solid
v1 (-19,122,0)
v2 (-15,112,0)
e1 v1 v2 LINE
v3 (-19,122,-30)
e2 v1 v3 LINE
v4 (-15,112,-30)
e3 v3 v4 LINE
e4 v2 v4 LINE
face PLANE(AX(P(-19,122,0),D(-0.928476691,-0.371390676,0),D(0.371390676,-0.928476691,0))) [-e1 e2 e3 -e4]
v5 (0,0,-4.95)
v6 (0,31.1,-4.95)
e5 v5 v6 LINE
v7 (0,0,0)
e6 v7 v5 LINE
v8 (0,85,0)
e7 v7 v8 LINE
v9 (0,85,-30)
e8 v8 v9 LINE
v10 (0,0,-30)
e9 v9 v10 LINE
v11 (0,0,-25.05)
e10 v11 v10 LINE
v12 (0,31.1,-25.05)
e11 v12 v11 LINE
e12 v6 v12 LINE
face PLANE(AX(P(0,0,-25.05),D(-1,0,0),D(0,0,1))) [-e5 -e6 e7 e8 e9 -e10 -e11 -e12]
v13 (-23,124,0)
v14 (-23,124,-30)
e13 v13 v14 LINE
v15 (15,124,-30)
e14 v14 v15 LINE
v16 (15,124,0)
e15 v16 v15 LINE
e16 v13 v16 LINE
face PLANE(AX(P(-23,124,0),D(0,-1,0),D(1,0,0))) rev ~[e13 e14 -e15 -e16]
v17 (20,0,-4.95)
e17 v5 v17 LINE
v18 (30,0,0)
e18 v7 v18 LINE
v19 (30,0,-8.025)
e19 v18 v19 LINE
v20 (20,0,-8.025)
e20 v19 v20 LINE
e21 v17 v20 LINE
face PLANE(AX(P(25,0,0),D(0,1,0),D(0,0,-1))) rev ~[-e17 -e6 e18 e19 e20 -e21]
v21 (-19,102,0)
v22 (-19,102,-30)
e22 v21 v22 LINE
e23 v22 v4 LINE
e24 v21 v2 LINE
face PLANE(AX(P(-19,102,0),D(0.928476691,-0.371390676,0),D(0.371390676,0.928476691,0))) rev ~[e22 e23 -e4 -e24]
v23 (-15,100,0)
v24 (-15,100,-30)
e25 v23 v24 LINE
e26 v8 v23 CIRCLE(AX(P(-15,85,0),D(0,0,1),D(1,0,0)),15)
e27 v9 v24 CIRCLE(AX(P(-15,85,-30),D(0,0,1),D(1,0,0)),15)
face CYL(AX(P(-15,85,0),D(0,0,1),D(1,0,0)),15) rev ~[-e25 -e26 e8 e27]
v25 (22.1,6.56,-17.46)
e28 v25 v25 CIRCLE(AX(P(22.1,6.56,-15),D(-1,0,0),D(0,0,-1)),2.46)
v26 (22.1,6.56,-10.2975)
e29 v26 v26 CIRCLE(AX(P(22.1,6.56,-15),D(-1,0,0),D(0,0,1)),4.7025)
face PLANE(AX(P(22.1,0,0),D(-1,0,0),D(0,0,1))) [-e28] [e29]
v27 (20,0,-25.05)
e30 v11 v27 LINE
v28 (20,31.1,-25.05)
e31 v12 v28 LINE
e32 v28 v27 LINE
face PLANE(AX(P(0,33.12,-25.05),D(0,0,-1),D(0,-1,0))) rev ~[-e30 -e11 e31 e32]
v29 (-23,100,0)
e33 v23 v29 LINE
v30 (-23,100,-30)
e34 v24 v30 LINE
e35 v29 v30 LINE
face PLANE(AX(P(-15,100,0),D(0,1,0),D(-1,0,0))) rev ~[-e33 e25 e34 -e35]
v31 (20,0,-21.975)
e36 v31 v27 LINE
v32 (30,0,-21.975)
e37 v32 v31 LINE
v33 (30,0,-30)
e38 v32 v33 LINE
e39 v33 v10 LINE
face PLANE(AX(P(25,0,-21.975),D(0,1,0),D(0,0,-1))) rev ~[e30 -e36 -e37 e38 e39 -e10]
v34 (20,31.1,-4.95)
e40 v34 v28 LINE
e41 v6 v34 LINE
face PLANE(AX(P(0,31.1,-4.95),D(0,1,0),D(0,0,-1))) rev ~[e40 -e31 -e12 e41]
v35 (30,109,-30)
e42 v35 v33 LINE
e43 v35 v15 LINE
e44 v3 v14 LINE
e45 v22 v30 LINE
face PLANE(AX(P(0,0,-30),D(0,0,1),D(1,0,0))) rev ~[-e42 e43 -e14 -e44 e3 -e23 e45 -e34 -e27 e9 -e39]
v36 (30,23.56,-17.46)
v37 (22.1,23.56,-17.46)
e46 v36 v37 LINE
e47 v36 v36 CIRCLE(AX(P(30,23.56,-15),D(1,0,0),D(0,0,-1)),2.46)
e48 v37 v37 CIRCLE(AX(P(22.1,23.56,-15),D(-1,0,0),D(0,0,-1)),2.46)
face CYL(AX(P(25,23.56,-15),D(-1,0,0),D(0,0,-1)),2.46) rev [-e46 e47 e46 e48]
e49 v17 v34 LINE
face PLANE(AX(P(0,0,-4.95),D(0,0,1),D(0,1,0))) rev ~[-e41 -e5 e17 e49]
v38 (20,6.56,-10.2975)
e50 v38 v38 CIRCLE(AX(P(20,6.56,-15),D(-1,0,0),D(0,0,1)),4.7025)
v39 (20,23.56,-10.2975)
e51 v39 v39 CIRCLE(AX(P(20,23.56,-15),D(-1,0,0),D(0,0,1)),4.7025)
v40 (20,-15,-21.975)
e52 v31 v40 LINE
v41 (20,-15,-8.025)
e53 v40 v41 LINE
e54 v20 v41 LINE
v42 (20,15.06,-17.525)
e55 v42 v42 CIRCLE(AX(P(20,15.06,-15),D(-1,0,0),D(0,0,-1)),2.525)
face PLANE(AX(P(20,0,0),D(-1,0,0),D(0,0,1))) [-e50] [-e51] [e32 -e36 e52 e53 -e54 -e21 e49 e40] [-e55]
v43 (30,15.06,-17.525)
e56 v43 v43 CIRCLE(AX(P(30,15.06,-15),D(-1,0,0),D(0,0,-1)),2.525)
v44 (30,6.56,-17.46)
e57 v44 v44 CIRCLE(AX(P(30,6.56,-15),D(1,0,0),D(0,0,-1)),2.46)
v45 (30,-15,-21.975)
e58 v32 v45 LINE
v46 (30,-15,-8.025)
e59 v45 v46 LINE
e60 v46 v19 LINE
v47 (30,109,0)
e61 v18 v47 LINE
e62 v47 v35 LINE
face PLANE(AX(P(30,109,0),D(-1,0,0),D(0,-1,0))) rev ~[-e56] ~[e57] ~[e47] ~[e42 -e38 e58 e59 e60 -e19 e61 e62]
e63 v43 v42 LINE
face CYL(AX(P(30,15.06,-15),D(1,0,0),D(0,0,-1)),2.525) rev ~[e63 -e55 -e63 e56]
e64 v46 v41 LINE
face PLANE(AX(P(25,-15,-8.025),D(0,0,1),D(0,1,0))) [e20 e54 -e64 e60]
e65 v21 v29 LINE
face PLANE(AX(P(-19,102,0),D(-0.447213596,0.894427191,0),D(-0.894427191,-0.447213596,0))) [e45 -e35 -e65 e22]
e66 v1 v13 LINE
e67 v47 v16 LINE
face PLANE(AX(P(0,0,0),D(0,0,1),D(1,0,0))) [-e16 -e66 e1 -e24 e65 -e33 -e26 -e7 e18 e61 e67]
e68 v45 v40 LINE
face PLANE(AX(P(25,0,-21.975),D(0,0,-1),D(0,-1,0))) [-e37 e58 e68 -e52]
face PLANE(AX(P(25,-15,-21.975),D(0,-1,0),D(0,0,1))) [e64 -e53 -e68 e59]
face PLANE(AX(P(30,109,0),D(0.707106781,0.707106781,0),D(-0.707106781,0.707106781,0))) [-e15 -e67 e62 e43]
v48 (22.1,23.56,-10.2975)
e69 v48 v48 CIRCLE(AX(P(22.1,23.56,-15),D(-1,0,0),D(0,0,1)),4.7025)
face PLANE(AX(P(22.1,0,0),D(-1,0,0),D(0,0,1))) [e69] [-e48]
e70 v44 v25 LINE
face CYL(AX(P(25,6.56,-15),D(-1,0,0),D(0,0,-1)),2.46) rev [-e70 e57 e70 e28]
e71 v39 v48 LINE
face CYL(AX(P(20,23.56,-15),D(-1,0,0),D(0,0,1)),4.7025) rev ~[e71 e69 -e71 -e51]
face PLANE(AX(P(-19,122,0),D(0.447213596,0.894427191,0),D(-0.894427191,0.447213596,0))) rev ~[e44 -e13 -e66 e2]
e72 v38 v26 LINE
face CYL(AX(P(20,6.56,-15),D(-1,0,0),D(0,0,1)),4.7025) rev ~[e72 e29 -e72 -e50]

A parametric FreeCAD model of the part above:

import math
import FreeCAD as App
import Part
import Sketcher
from FreeCAD import Vector
Q = App.Units.Quantity


def add_polygon(sketch, points):
    """Adds a closed chain of lines whose ends are joined by coincident constraints."""
    first, n = sketch.GeometryCount, len(points)
    for a, b in zip(points, points[1:] + points[:1]):
        sketch.addGeometry(Part.LineSegment(App.Vector(*a, 0), App.Vector(*b, 0)), False)
    for i in range(n):
        sketch.addConstraint(Sketcher.Constraint("Coincident", first + i, 2, first + (i + 1) % n, 1))

doc = App.newDocument("Part")
body = doc.addObject("PartDesign::Body", "Body")

# Sketch on XY plane
sketch1 = body.newObject("Sketcher::SketchObject", "Sketch")
sketch1.AttachmentSupport = (doc.getObject("XY_Plane"), [""])
sketch1.MapMode = "FlatFace"
add_polygon(sketch1, [(0, 40), (0, 0), (25, 0), (25, 40)])  # lines 0-3
sketch1.addConstraint([
    Sketcher.Constraint("Vertical", 0),
    Sketcher.Constraint("Horizontal", 1),
    Sketcher.Constraint("Vertical", 2),
    Sketcher.Constraint("Horizontal", 3),
    Sketcher.Constraint("Coincident", 0, 2, -1, 1),
    Sketcher.Constraint("DistanceX", 1, 1, 1, 2, Q("25 mm")),
    Sketcher.Constraint("DistanceY", 0, 2, 0, 1, Q("40 mm")),
])
pad1 = body.newObject("PartDesign::Pad", "Pad")
pad1.Profile = sketch1
pad1.Length = 30
pad1.Reversed = True

# Sketch on YZ plane
sketch2 = body.newObject("Sketcher::SketchObject", "Sketch001")
sketch2.AttachmentSupport = (doc.getObject("YZ_Plane"), [""])
sketch2.MapMode = "FlatFace"
sketch2.AttachmentOffset = App.Placement(Vector(0, 0, 25), App.Rotation())
sketch2.addGeometry(Part.Circle(Vector(6.56, -15, 0), Vector(0, 0, 1), 2.46), False)
sketch2.addConstraint([
    Sketcher.Constraint("Diameter", 0, Q("4.92 mm")),
    Sketcher.Constraint("DistanceY", 0, 3, -1, 1, Q("15 mm")),
    Sketcher.Constraint("DistanceX", -1, 1, 0, 3, Q("6.56 mm")),
])
pocket1 = body.newObject("PartDesign::Pocket", "Pocket")
pocket1.Profile = sketch2
pocket1.Length = 30

# Sketch on YZ plane
sketch3 = body.newObject("Sketcher::SketchObject", "Sketch002")
sketch3.AttachmentSupport = (doc.getObject("YZ_Plane"), [""])
sketch3.MapMode = "FlatFace"
add_polygon(sketch3, [(0, -25.05), (0, -4.95), (33.12, -4.95), (33.12, -25.05)])  # lines 0-3
sketch3.addConstraint([
    Sketcher.Constraint("Vertical", 0),
    Sketcher.Constraint("Horizontal", 1),
    Sketcher.Constraint("Vertical", 2),
    Sketcher.Constraint("Horizontal", 3),
    Sketcher.Constraint("PointOnObject", 0, 2, -2),
    Sketcher.Constraint("DistanceY", 0, 1, 0, 2, Q("20.1 mm")),
    Sketcher.Constraint("DistanceX", 1, 1, 1, 2, Q("33.12 mm")),
    Sketcher.Constraint("DistanceY", 0, 2, -1, 1, Q("4.95 mm")),
])
pocket2 = body.newObject("PartDesign::Pocket", "Pocket001")
pocket2.Profile = sketch3
pocket2.Length = 20
pocket2.Reversed = True

# Sketch on XZ plane
sketch4 = body.newObject("Sketcher::SketchObject", "Sketch003")
sketch4.AttachmentSupport = (doc.getObject("XZ_Plane"), [""])
sketch4.MapMode = "FlatFace"
add_polygon(sketch4, [(25, -8.025), (20, -8.025), (20, -21.975), (25, -21.975)])  # lines 0-3
sketch4.addConstraint([
    Sketcher.Constraint("Horizontal", 0),
    Sketcher.Constraint("Vertical", 1),
    Sketcher.Constraint("Horizontal", 2),
    Sketcher.Constraint("Vertical", 3),
    Sketcher.Constraint("DistanceY", 1, 2, 1, 1, Q("13.95 mm")),
    Sketcher.Constraint("DistanceX", 0, 2, 0, 1, Q("5 mm")),
    Sketcher.Constraint("DistanceX", -1, 1, 0, 2, Q("20 mm")),
    Sketcher.Constraint("DistanceY", 0, 2, -1, 1, Q("8.025 mm")),
])
pad2 = body.newObject("PartDesign::Pad", "Pad001")
pad2.Profile = sketch4
pad2.Length = 15

# Sketch on YZ plane
sketch5 = body.newObject("Sketcher::SketchObject", "Sketch004")
sketch5.AttachmentSupport = (doc.getObject("YZ_Plane"), [""])
sketch5.MapMode = "FlatFace"
sketch5.AttachmentOffset = App.Placement(Vector(0, 0, 20), App.Rotation())
sketch5.addGeometry([
    Part.Circle(Vector(6.56, -15, 0), Vector(0, 0, 1), 4.7025),
    Part.Circle(Vector(6.56, -15, 0), Vector(0, 0, 1), 2.46),
], False)
sketch5.addConstraint([
    Sketcher.Constraint("Coincident", 1, 3, 0, 3),
    Sketcher.Constraint("Diameter", 0, Q("9.405 mm")),
    Sketcher.Constraint("Diameter", 1, Q("4.92 mm")),
    Sketcher.Constraint("DistanceY", 0, 3, -1, 1, Q("15 mm")),
    Sketcher.Constraint("DistanceX", -1, 1, 0, 3, Q("6.56 mm")),
])
pocket3 = body.newObject("PartDesign::Pocket", "Pocket002")
pocket3.Profile = sketch5
pocket3.Length = 2.1
pocket3.Reversed = True

# Sketch on YZ plane
sketch6 = body.newObject("Sketcher::SketchObject", "Sketch005")
sketch6.AttachmentSupport = (doc.getObject("YZ_Plane"), [""])
sketch6.MapMode = "FlatFace"
sketch6.AttachmentOffset = App.Placement(Vector(0, 0, 25), App.Rotation())
sketch6.addGeometry(Part.Circle(Vector(23.56, -15, 0), Vector(0, 0, 1), 2.46), False)
sketch6.addConstraint([
    Sketcher.Constraint("Diameter", 0, Q("4.92 mm")),
    Sketcher.Constraint("DistanceY", 0, 3, -1, 1, Q("15 mm")),
    Sketcher.Constraint("DistanceX", -1, 1, 0, 3, Q("23.56 mm")),
])
pocket4 = body.newObject("PartDesign::Pocket", "Pocket003")
pocket4.Profile = sketch6
pocket4.Length = 10

# Sketch on YZ plane
sketch7 = body.newObject("Sketcher::SketchObject", "Sketch006")
sketch7.AttachmentSupport = (doc.getObject("YZ_Plane"), [""])
sketch7.MapMode = "FlatFace"
sketch7.AttachmentOffset = App.Placement(Vector(0, 0, 20), App.Rotation())
sketch7.addGeometry([
    Part.Circle(Vector(23.56, -15, 0), Vector(0, 0, 1), 4.7025),
    Part.Circle(Vector(23.56, -15, 0), Vector(0, 0, 1), 2.46),
], False)
sketch7.addConstraint([
    Sketcher.Constraint("Coincident", 1, 3, 0, 3),
    Sketcher.Constraint("Diameter", 0, Q("9.405 mm")),
    Sketcher.Constraint("Diameter", 1, Q("4.92 mm")),
    Sketcher.Constraint("DistanceY", 0, 3, -1, 1, Q("15 mm")),
    Sketcher.Constraint("DistanceX", -1, 1, 0, 3, Q("23.56 mm")),
])
pocket5 = body.newObject("PartDesign::Pocket", "Pocket004")
pocket5.Profile = sketch7
pocket5.Length = 2.1
pocket5.Reversed = True

# Sketch on YZ plane
sketch8 = body.newObject("Sketcher::SketchObject", "Sketch007")
sketch8.AttachmentSupport = (doc.getObject("YZ_Plane"), [""])
sketch8.MapMode = "FlatFace"
sketch8.AttachmentOffset = App.Placement(Vector(0, 0, 25), App.Rotation())
add_polygon(sketch8, [(0, -30), (40, -30), (40, 0), (0, 0), (0, -8.025), (-15, -8.025), (-15, -21.975), (0, -21.975)])  # lines 0-7
sketch8.addGeometry(Part.Circle(Vector(6.56, -15, 0), Vector(0, 0, 1), 2.46), False)  # 8
sketch8.addGeometry(Part.Circle(Vector(23.56, -15, 0), Vector(0, 0, 1), 2.46), False)  # 9
sketch8.addConstraint([
    Sketcher.Constraint("Horizontal", 0),
    Sketcher.Constraint("Vertical", 1),
    Sketcher.Constraint("Horizontal", 2),
    Sketcher.Constraint("Vertical", 3),
    Sketcher.Constraint("Horizontal", 4),
    Sketcher.Constraint("Vertical", 5),
    Sketcher.Constraint("Horizontal", 6),
    Sketcher.Constraint("Vertical", 7),
    Sketcher.Constraint("Coincident", 2, 2, -1, 1),
    Sketcher.Constraint("Equal", 8, 9),
    Sketcher.Constraint("PointOnObject", 6, 2, -2),
    Sketcher.Constraint("Horizontal", 8, 3, 9, 3),
    Sketcher.Constraint("Equal", 3, 7),
    Sketcher.Constraint("Diameter", 8, Q("4.92 mm")),
    Sketcher.Constraint("DistanceX", 0, 1, 0, 2, Q("40 mm")),
    Sketcher.Constraint("DistanceX", 4, 2, 4, 1, Q("15 mm")),
    Sketcher.Constraint("DistanceY", 1, 1, 1, 2, Q("30 mm")),
    Sketcher.Constraint("DistanceY", 8, 3, -1, 1, Q("15 mm")),
    Sketcher.Constraint("DistanceX", 8, 3, 9, 3, Q("17 mm")),
    Sketcher.Constraint("DistanceY", 5, 2, 5, 1, Q("13.95 mm")),
    Sketcher.Constraint("DistanceX", -1, 1, 8, 3, Q("6.56 mm")),
])
pad3 = body.newObject("PartDesign::Pad", "Pad002")
pad3.Profile = sketch8
pad3.Length = 5

# Sketch on XZ plane
sketch9 = body.newObject("Sketcher::SketchObject", "Sketch008")
sketch9.AttachmentSupport = (doc.getObject("XZ_Plane"), [""])
sketch9.MapMode = "FlatFace"
sketch9.AttachmentOffset = App.Placement(Vector(0, 0, -40), App.Rotation())
add_polygon(sketch9, [(30, -30), (0, -30), (0, 0), (30, 0)])  # lines 0-3
sketch9.addConstraint([
    Sketcher.Constraint("Horizontal", 0),
    Sketcher.Constraint("Vertical", 1),
    Sketcher.Constraint("Horizontal", 2),
    Sketcher.Constraint("Vertical", 3),
    Sketcher.Constraint("Coincident", 1, 2, -1, 1),
    Sketcher.Constraint("Equal", 2, 1),
    Sketcher.Constraint("DistanceX", 0, 2, 0, 1, Q("30 mm")),
])
pad4 = body.newObject("PartDesign::Pad", "Pad003")
pad4.Profile = sketch9
pad4.Length = 30
pad4.Reversed = True

# Sketch on YZ plane
sketch10 = body.newObject("Sketcher::SketchObject", "Sketch009")
sketch10.AttachmentSupport = (doc.getObject("YZ_Plane"), [""])
sketch10.MapMode = "FlatFace"
sketch10.AttachmentOffset = App.Placement(Vector(0, 0, 30), App.Rotation())
sketch10.addGeometry(Part.Circle(Vector(15.06, -15, 0), Vector(0, 0, 1), 2.525), False)
sketch10.addConstraint([
    Sketcher.Constraint("Diameter", 0, Q("5.05 mm")),
    Sketcher.Constraint("DistanceY", 0, 3, -1, 1, Q("15 mm")),
    Sketcher.Constraint("DistanceX", -1, 1, 0, 3, Q("15.06 mm")),
])
pocket6 = body.newObject("PartDesign::Pocket", "Pocket005")
pocket6.Profile = sketch10
pocket6.Length = 30

# Sketch on XY plane
sketch11 = body.newObject("Sketcher::SketchObject", "Sketch010")
sketch11.AttachmentSupport = (doc.getObject("XY_Plane"), [""])
sketch11.MapMode = "FlatFace"
sketch11.addGeometry([
    Part.LineSegment(Vector(0, 70, 0), Vector(30, 70, 0)),  # 0
    Part.LineSegment(Vector(30, 70, 0), Vector(30, 109, 0)),  # 1
    Part.LineSegment(Vector(30, 109, 0), Vector(15, 124, 0)),  # 2
    Part.LineSegment(Vector(15, 124, 0), Vector(-23, 124, 0)),  # 3
    Part.LineSegment(Vector(-23, 124, 0), Vector(-19, 122, 0)),  # 4
    Part.LineSegment(Vector(-19, 122, 0), Vector(-15, 112, 0)),  # 5
    Part.LineSegment(Vector(-15, 112, 0), Vector(-19, 102, 0)),  # 6
    Part.LineSegment(Vector(-19, 102, 0), Vector(-23, 100, 0)),  # 7
    Part.LineSegment(Vector(-23, 100, 0), Vector(-15, 100, 0)),  # 8
    Part.ArcOfCircle(Part.Circle(Vector(-15, 85, 0), Vector(0, 0, 1), 15), math.radians(0), math.radians(90)),  # 9
    Part.LineSegment(Vector(0, 85, 0), Vector(0, 70, 0)),  # 10
], False)
sketch11.addConstraint([
    Sketcher.Constraint("Coincident", 0, 2, 1, 1),
    Sketcher.Constraint("Coincident", 1, 2, 2, 1),
    Sketcher.Constraint("Coincident", 2, 2, 3, 1),
    Sketcher.Constraint("Coincident", 3, 2, 4, 1),
    Sketcher.Constraint("Coincident", 4, 2, 5, 1),
    Sketcher.Constraint("Coincident", 5, 2, 6, 1),
    Sketcher.Constraint("Coincident", 6, 2, 7, 1),
    Sketcher.Constraint("Coincident", 7, 2, 8, 1),
    Sketcher.Constraint("Tangent", 8, 2, 9, 2),
    Sketcher.Constraint("Tangent", 9, 1, 10, 1),
    Sketcher.Constraint("Coincident", 10, 2, 0, 1),
    Sketcher.Constraint("Horizontal", 0),
    Sketcher.Constraint("Vertical", 1),
    Sketcher.Constraint("Horizontal", 3),
    Sketcher.Constraint("Horizontal", 8),
    Sketcher.Constraint("Vertical", 10),
    Sketcher.Constraint("PointOnObject", 9, 1, -2),
    Sketcher.Constraint("Vertical", 9, 3, 5, 2),
    Sketcher.Constraint("Vertical", 4, 2, 6, 2),
    Sketcher.Constraint("Vertical", 3, 2, 7, 2),
    Sketcher.Constraint("Equal", 5, 6),
    Sketcher.Constraint("Equal", 4, 7),
    Sketcher.Constraint("Radius", 9, Q("15 mm")),
    Sketcher.Constraint("DistanceX", 0, 1, 0, 2, Q("30 mm")),
    Sketcher.Constraint("DistanceY", 10, 2, 10, 1, Q("15 mm")),
    Sketcher.Constraint("DistanceX", -1, 1, 2, 2, Q("15 mm")),
    Sketcher.Constraint("DistanceY", 1, 2, 2, 2, Q("15 mm")),
    Sketcher.Constraint("DistanceX", 3, 2, 3, 1, Q("38 mm")),
    Sketcher.Constraint("DistanceY", 1, 1, 1, 2, Q("39 mm")),
    Sketcher.Constraint("DistanceY", -1, 1, 9, 3, Q("85 mm")),
    Sketcher.Constraint("DistanceX", 4, 2, -1, 1, Q("19 mm")),
    Sketcher.Constraint("DistanceY", -1, 1, 4, 2, Q("122 mm")),
])
pad5 = body.newObject("PartDesign::Pad", "Pad004")
pad5.Profile = sketch11
pad5.Length = 30
pad5.Reversed = True

# Sketch on YZ plane
sketch12 = body.newObject("Sketcher::SketchObject", "Sketch011")
sketch12.AttachmentSupport = (doc.getObject("YZ_Plane"), [""])
sketch12.MapMode = "FlatFace"
add_polygon(sketch12, [(33.12, -4.95), (33.12, -25.05), (31.1, -25.05), (31.1, -4.95)])  # lines 0-3
sketch12.addConstraint([
    Sketcher.Constraint("Vertical", 0),
    Sketcher.Constraint("Horizontal", 1),
    Sketcher.Constraint("Vertical", 2),
    Sketcher.Constraint("Horizontal", 3),
    Sketcher.Constraint("DistanceX", 1, 2, 1, 1, Q("2.02 mm")),
    Sketcher.Constraint("DistanceY", 0, 2, 0, 1, Q("20.1 mm")),
    Sketcher.Constraint("DistanceX", -1, 1, 1, 2, Q("31.1 mm")),
    Sketcher.Constraint("DistanceY", 0, 2, -1, 1, Q("25.05 mm")),
])
pad6 = body.newObject("PartDesign::Pad", "Pad005")
pad6.Profile = sketch12
pad6.Length = 20

doc.recompute()
